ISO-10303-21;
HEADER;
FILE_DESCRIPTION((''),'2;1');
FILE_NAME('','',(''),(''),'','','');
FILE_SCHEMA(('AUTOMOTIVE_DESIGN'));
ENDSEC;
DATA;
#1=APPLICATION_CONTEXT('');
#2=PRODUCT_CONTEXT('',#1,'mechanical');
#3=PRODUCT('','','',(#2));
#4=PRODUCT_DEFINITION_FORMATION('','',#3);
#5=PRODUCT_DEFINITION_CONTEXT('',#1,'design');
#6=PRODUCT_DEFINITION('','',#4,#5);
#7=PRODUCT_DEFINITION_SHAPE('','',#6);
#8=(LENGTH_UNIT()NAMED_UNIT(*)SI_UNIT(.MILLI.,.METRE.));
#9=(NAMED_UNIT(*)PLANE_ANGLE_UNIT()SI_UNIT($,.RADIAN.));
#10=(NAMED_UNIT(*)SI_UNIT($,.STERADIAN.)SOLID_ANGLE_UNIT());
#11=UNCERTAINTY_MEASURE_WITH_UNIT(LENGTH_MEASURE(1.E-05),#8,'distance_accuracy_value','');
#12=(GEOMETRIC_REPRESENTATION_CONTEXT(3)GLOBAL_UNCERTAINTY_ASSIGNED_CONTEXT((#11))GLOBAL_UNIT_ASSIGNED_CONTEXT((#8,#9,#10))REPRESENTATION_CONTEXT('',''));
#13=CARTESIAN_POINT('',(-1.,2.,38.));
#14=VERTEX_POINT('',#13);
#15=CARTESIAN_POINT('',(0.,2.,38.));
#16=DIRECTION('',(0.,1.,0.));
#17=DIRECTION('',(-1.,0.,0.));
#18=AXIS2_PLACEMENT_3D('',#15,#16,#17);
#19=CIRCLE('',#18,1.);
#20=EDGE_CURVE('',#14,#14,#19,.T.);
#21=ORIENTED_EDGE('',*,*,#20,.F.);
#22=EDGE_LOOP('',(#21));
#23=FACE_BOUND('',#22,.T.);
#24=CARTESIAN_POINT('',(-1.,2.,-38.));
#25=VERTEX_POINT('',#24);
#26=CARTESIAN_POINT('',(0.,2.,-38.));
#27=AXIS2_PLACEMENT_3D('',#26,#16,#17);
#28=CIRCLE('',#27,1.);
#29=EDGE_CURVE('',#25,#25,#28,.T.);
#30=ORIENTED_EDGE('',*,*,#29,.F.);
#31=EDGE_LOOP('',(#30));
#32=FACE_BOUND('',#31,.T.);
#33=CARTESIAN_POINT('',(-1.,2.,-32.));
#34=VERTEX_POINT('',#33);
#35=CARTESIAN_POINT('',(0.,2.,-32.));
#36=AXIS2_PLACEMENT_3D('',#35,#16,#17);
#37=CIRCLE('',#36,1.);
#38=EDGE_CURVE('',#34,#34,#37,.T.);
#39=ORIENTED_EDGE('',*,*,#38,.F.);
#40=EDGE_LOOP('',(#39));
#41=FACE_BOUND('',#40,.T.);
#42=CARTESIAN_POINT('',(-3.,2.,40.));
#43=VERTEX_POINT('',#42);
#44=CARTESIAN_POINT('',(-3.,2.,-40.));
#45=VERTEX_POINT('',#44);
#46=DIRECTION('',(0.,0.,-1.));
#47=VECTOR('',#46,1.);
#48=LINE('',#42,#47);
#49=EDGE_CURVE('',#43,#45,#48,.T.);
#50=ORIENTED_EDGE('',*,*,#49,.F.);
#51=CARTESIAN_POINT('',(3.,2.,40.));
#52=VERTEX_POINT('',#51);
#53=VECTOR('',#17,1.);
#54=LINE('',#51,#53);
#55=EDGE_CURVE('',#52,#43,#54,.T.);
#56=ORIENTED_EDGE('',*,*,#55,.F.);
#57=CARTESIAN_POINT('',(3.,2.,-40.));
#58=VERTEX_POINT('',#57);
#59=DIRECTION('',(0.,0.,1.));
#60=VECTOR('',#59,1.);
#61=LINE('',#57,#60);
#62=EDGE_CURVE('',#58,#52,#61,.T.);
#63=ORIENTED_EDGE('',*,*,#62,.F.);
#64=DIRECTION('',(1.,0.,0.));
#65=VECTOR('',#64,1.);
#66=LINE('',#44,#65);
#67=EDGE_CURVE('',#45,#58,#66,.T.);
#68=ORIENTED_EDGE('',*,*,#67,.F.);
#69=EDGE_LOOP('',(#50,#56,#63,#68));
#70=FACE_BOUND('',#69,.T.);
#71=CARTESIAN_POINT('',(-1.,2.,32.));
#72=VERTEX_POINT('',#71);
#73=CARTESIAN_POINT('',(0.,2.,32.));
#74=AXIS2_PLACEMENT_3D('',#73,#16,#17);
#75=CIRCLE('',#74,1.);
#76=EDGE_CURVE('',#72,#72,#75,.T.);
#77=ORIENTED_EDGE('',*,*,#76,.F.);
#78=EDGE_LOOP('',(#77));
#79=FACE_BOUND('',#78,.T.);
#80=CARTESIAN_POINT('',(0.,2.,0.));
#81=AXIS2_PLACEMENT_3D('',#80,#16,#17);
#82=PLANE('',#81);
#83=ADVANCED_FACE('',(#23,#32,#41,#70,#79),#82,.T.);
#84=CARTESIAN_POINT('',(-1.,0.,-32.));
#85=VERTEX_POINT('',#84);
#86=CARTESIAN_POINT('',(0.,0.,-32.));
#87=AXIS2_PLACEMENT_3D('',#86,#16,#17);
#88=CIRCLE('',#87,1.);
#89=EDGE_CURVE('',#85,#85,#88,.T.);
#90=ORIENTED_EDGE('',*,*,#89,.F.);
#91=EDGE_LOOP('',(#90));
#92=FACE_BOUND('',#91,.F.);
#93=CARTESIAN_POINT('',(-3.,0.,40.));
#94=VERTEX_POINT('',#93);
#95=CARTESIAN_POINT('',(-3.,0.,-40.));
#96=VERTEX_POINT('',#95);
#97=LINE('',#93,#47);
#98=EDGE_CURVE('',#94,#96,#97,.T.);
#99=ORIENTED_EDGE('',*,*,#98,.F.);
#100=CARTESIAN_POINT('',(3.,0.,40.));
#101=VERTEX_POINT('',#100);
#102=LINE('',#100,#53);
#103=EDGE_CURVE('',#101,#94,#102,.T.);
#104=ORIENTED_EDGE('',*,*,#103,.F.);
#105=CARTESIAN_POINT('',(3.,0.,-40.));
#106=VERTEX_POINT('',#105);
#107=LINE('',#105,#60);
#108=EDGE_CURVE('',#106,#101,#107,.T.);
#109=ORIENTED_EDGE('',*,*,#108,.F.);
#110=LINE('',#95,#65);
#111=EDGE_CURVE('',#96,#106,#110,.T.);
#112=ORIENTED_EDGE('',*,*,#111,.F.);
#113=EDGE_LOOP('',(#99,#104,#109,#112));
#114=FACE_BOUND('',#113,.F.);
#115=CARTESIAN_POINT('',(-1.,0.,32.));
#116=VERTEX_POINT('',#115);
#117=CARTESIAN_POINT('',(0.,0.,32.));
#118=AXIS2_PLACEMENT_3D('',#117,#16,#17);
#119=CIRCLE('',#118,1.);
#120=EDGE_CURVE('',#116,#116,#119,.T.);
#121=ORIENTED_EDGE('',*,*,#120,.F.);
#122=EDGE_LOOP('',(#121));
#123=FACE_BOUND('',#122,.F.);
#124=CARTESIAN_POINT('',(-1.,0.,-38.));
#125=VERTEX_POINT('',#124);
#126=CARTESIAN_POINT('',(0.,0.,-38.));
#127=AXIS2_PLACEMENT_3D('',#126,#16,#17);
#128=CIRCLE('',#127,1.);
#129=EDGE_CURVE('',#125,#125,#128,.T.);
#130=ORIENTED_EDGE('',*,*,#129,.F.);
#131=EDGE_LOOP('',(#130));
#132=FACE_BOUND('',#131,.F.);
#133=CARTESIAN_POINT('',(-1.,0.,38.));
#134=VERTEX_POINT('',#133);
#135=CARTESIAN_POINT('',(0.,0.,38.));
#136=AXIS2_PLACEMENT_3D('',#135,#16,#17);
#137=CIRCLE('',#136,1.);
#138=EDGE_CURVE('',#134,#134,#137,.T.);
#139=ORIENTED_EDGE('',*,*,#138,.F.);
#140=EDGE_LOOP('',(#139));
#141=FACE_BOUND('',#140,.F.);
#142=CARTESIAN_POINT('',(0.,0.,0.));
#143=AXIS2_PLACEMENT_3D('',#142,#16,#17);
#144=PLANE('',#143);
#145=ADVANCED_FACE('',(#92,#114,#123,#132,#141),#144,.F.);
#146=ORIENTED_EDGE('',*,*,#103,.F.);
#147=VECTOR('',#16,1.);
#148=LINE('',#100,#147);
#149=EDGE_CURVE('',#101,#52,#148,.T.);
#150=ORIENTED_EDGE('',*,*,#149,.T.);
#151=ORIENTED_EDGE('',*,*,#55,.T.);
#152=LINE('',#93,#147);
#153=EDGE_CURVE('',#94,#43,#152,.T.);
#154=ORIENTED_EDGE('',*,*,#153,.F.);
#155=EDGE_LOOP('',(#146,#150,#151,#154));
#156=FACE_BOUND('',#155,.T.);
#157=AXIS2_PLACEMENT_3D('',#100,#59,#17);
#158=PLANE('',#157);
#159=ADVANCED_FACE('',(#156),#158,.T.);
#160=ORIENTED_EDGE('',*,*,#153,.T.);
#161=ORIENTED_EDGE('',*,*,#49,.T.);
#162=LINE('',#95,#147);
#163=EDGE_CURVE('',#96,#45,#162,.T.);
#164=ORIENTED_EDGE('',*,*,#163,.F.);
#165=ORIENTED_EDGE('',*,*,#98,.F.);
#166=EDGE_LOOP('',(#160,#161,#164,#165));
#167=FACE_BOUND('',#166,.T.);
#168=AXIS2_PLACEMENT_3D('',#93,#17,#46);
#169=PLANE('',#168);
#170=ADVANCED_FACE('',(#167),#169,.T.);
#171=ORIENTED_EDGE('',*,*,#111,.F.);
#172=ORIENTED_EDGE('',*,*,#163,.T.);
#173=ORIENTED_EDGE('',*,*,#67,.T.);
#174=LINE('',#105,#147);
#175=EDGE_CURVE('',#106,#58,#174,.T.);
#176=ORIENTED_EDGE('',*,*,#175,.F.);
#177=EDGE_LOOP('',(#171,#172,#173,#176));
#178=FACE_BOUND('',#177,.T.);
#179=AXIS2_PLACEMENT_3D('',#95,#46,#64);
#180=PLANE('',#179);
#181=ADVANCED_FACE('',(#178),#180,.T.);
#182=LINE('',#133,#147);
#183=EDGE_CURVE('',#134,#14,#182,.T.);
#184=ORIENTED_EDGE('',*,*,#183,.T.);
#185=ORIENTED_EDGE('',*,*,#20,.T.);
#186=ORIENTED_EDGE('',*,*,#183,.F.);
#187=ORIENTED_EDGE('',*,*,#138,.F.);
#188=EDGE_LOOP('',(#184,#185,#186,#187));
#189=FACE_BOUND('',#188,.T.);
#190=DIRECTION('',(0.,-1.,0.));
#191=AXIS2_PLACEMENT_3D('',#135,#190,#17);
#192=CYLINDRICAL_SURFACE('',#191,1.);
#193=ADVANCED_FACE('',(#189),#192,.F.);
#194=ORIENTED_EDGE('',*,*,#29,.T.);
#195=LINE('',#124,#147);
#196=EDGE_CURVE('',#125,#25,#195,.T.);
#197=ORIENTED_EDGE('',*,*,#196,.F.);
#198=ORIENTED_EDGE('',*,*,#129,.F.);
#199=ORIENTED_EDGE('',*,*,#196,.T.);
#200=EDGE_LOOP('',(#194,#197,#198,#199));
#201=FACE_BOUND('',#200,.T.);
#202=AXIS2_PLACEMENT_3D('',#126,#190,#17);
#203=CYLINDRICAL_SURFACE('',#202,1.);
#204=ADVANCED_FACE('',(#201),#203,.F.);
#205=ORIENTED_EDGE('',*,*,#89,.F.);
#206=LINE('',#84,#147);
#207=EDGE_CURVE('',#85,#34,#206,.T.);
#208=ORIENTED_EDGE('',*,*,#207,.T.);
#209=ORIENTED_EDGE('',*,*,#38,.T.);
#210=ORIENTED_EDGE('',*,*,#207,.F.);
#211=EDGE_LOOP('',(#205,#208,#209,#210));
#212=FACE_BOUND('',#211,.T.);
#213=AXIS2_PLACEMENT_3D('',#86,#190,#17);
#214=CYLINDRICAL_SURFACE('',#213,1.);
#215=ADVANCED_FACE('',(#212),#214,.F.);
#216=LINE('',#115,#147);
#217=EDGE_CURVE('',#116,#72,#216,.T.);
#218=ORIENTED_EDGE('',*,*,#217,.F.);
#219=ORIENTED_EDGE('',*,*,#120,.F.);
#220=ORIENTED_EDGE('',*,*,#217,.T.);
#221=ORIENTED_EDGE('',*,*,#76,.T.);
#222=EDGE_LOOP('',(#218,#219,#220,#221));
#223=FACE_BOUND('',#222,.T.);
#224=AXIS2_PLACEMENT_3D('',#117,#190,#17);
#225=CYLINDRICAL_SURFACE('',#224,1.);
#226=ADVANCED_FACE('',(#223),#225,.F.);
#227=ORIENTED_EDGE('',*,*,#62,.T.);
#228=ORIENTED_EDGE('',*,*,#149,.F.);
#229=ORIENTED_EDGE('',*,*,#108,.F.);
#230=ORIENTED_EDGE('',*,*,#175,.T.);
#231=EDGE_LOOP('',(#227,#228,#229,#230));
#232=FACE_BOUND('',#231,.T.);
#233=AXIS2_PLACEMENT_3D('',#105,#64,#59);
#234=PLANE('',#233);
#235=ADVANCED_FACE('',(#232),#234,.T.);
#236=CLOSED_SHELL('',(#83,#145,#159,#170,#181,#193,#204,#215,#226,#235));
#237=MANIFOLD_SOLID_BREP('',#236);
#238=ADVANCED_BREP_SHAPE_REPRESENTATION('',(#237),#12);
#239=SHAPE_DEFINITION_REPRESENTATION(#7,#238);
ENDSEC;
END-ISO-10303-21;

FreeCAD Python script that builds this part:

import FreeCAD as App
import Part
import Sketcher

V = App.Vector
Q = App.Units.Quantity

doc = App.newDocument("Part")
body = doc.addObject("PartDesign::Body", "Body")

sketch1 = body.newObject("Sketcher::SketchObject", "Sketch")
sketch1.AttachmentSupport = (doc.getObject("XZ_Plane"), [""])
sketch1.MapMode = "FlatFace"
sketch1.addGeometry([
    Part.LineSegment(V(-3, 40, 0), V(3, 40, 0)),
    Part.LineSegment(V(3, 40, 0), V(3, -40, 0)),
    Part.LineSegment(V(3, -40, 0), V(-3, -40, 0)),
    Part.LineSegment(V(-3, -40, 0), V(-3, 40, 0)),
    Part.Circle(V(0, -38, 0), V(0, 0, 1), 1),
    Part.Circle(V(0, -32, 0), V(0, 0, 1), 1),
    Part.Circle(V(0, 32, 0), V(0, 0, 1), 1),
    Part.Circle(V(0, 38, 0), V(0, 0, 1), 1),
], False)
sketch1.addConstraint([
    Sketcher.Constraint("Coincident", 0, 2, 1, 1),
    Sketcher.Constraint("Coincident", 1, 2, 2, 1),
    Sketcher.Constraint("Coincident", 2, 2, 3, 1),
    Sketcher.Constraint("Coincident", 3, 2, 0, 1),
    Sketcher.Constraint("Horizontal", 0),
    Sketcher.Constraint("Vertical", 1),
    Sketcher.Constraint("Horizontal", 2),
    Sketcher.Constraint("Vertical", 3),
    Sketcher.Constraint("Equal", 4, 5),
    Sketcher.Constraint("Equal", 5, 6),
    Sketcher.Constraint("Equal", 6, 7),
    Sketcher.Constraint("Symmetric", 5, 3, 6, 3, -1, 1),
    Sketcher.Constraint("Symmetric", 4, 3, 7, 3, -1, 1),
    Sketcher.Constraint("Symmetric", 0, 2, 2, 2, -1, 1),
    Sketcher.Constraint("PointOnObject", 4, 3, -2),
    Sketcher.Constraint("PointOnObject", 5, 3, -2),
    Sketcher.Constraint("Diameter", 4, Q("2 mm")),
    Sketcher.Constraint("DistanceX", 0, 1, 0, 2, Q("6 mm")),
    Sketcher.Constraint("DistanceY", 1, 2, 1, 1, Q("80 mm")),
    Sketcher.Constraint("DistanceY", 4, 3, -1, 1, Q("38 mm")),
    Sketcher.Constraint("DistanceY", 5, 3, -1, 1, Q("32 mm")),
])
pad1 = body.newObject("PartDesign::Pad", "Pad")
pad1.Profile = sketch1
pad1.Length = 2
pad1.Reversed = True

doc.recompute()
